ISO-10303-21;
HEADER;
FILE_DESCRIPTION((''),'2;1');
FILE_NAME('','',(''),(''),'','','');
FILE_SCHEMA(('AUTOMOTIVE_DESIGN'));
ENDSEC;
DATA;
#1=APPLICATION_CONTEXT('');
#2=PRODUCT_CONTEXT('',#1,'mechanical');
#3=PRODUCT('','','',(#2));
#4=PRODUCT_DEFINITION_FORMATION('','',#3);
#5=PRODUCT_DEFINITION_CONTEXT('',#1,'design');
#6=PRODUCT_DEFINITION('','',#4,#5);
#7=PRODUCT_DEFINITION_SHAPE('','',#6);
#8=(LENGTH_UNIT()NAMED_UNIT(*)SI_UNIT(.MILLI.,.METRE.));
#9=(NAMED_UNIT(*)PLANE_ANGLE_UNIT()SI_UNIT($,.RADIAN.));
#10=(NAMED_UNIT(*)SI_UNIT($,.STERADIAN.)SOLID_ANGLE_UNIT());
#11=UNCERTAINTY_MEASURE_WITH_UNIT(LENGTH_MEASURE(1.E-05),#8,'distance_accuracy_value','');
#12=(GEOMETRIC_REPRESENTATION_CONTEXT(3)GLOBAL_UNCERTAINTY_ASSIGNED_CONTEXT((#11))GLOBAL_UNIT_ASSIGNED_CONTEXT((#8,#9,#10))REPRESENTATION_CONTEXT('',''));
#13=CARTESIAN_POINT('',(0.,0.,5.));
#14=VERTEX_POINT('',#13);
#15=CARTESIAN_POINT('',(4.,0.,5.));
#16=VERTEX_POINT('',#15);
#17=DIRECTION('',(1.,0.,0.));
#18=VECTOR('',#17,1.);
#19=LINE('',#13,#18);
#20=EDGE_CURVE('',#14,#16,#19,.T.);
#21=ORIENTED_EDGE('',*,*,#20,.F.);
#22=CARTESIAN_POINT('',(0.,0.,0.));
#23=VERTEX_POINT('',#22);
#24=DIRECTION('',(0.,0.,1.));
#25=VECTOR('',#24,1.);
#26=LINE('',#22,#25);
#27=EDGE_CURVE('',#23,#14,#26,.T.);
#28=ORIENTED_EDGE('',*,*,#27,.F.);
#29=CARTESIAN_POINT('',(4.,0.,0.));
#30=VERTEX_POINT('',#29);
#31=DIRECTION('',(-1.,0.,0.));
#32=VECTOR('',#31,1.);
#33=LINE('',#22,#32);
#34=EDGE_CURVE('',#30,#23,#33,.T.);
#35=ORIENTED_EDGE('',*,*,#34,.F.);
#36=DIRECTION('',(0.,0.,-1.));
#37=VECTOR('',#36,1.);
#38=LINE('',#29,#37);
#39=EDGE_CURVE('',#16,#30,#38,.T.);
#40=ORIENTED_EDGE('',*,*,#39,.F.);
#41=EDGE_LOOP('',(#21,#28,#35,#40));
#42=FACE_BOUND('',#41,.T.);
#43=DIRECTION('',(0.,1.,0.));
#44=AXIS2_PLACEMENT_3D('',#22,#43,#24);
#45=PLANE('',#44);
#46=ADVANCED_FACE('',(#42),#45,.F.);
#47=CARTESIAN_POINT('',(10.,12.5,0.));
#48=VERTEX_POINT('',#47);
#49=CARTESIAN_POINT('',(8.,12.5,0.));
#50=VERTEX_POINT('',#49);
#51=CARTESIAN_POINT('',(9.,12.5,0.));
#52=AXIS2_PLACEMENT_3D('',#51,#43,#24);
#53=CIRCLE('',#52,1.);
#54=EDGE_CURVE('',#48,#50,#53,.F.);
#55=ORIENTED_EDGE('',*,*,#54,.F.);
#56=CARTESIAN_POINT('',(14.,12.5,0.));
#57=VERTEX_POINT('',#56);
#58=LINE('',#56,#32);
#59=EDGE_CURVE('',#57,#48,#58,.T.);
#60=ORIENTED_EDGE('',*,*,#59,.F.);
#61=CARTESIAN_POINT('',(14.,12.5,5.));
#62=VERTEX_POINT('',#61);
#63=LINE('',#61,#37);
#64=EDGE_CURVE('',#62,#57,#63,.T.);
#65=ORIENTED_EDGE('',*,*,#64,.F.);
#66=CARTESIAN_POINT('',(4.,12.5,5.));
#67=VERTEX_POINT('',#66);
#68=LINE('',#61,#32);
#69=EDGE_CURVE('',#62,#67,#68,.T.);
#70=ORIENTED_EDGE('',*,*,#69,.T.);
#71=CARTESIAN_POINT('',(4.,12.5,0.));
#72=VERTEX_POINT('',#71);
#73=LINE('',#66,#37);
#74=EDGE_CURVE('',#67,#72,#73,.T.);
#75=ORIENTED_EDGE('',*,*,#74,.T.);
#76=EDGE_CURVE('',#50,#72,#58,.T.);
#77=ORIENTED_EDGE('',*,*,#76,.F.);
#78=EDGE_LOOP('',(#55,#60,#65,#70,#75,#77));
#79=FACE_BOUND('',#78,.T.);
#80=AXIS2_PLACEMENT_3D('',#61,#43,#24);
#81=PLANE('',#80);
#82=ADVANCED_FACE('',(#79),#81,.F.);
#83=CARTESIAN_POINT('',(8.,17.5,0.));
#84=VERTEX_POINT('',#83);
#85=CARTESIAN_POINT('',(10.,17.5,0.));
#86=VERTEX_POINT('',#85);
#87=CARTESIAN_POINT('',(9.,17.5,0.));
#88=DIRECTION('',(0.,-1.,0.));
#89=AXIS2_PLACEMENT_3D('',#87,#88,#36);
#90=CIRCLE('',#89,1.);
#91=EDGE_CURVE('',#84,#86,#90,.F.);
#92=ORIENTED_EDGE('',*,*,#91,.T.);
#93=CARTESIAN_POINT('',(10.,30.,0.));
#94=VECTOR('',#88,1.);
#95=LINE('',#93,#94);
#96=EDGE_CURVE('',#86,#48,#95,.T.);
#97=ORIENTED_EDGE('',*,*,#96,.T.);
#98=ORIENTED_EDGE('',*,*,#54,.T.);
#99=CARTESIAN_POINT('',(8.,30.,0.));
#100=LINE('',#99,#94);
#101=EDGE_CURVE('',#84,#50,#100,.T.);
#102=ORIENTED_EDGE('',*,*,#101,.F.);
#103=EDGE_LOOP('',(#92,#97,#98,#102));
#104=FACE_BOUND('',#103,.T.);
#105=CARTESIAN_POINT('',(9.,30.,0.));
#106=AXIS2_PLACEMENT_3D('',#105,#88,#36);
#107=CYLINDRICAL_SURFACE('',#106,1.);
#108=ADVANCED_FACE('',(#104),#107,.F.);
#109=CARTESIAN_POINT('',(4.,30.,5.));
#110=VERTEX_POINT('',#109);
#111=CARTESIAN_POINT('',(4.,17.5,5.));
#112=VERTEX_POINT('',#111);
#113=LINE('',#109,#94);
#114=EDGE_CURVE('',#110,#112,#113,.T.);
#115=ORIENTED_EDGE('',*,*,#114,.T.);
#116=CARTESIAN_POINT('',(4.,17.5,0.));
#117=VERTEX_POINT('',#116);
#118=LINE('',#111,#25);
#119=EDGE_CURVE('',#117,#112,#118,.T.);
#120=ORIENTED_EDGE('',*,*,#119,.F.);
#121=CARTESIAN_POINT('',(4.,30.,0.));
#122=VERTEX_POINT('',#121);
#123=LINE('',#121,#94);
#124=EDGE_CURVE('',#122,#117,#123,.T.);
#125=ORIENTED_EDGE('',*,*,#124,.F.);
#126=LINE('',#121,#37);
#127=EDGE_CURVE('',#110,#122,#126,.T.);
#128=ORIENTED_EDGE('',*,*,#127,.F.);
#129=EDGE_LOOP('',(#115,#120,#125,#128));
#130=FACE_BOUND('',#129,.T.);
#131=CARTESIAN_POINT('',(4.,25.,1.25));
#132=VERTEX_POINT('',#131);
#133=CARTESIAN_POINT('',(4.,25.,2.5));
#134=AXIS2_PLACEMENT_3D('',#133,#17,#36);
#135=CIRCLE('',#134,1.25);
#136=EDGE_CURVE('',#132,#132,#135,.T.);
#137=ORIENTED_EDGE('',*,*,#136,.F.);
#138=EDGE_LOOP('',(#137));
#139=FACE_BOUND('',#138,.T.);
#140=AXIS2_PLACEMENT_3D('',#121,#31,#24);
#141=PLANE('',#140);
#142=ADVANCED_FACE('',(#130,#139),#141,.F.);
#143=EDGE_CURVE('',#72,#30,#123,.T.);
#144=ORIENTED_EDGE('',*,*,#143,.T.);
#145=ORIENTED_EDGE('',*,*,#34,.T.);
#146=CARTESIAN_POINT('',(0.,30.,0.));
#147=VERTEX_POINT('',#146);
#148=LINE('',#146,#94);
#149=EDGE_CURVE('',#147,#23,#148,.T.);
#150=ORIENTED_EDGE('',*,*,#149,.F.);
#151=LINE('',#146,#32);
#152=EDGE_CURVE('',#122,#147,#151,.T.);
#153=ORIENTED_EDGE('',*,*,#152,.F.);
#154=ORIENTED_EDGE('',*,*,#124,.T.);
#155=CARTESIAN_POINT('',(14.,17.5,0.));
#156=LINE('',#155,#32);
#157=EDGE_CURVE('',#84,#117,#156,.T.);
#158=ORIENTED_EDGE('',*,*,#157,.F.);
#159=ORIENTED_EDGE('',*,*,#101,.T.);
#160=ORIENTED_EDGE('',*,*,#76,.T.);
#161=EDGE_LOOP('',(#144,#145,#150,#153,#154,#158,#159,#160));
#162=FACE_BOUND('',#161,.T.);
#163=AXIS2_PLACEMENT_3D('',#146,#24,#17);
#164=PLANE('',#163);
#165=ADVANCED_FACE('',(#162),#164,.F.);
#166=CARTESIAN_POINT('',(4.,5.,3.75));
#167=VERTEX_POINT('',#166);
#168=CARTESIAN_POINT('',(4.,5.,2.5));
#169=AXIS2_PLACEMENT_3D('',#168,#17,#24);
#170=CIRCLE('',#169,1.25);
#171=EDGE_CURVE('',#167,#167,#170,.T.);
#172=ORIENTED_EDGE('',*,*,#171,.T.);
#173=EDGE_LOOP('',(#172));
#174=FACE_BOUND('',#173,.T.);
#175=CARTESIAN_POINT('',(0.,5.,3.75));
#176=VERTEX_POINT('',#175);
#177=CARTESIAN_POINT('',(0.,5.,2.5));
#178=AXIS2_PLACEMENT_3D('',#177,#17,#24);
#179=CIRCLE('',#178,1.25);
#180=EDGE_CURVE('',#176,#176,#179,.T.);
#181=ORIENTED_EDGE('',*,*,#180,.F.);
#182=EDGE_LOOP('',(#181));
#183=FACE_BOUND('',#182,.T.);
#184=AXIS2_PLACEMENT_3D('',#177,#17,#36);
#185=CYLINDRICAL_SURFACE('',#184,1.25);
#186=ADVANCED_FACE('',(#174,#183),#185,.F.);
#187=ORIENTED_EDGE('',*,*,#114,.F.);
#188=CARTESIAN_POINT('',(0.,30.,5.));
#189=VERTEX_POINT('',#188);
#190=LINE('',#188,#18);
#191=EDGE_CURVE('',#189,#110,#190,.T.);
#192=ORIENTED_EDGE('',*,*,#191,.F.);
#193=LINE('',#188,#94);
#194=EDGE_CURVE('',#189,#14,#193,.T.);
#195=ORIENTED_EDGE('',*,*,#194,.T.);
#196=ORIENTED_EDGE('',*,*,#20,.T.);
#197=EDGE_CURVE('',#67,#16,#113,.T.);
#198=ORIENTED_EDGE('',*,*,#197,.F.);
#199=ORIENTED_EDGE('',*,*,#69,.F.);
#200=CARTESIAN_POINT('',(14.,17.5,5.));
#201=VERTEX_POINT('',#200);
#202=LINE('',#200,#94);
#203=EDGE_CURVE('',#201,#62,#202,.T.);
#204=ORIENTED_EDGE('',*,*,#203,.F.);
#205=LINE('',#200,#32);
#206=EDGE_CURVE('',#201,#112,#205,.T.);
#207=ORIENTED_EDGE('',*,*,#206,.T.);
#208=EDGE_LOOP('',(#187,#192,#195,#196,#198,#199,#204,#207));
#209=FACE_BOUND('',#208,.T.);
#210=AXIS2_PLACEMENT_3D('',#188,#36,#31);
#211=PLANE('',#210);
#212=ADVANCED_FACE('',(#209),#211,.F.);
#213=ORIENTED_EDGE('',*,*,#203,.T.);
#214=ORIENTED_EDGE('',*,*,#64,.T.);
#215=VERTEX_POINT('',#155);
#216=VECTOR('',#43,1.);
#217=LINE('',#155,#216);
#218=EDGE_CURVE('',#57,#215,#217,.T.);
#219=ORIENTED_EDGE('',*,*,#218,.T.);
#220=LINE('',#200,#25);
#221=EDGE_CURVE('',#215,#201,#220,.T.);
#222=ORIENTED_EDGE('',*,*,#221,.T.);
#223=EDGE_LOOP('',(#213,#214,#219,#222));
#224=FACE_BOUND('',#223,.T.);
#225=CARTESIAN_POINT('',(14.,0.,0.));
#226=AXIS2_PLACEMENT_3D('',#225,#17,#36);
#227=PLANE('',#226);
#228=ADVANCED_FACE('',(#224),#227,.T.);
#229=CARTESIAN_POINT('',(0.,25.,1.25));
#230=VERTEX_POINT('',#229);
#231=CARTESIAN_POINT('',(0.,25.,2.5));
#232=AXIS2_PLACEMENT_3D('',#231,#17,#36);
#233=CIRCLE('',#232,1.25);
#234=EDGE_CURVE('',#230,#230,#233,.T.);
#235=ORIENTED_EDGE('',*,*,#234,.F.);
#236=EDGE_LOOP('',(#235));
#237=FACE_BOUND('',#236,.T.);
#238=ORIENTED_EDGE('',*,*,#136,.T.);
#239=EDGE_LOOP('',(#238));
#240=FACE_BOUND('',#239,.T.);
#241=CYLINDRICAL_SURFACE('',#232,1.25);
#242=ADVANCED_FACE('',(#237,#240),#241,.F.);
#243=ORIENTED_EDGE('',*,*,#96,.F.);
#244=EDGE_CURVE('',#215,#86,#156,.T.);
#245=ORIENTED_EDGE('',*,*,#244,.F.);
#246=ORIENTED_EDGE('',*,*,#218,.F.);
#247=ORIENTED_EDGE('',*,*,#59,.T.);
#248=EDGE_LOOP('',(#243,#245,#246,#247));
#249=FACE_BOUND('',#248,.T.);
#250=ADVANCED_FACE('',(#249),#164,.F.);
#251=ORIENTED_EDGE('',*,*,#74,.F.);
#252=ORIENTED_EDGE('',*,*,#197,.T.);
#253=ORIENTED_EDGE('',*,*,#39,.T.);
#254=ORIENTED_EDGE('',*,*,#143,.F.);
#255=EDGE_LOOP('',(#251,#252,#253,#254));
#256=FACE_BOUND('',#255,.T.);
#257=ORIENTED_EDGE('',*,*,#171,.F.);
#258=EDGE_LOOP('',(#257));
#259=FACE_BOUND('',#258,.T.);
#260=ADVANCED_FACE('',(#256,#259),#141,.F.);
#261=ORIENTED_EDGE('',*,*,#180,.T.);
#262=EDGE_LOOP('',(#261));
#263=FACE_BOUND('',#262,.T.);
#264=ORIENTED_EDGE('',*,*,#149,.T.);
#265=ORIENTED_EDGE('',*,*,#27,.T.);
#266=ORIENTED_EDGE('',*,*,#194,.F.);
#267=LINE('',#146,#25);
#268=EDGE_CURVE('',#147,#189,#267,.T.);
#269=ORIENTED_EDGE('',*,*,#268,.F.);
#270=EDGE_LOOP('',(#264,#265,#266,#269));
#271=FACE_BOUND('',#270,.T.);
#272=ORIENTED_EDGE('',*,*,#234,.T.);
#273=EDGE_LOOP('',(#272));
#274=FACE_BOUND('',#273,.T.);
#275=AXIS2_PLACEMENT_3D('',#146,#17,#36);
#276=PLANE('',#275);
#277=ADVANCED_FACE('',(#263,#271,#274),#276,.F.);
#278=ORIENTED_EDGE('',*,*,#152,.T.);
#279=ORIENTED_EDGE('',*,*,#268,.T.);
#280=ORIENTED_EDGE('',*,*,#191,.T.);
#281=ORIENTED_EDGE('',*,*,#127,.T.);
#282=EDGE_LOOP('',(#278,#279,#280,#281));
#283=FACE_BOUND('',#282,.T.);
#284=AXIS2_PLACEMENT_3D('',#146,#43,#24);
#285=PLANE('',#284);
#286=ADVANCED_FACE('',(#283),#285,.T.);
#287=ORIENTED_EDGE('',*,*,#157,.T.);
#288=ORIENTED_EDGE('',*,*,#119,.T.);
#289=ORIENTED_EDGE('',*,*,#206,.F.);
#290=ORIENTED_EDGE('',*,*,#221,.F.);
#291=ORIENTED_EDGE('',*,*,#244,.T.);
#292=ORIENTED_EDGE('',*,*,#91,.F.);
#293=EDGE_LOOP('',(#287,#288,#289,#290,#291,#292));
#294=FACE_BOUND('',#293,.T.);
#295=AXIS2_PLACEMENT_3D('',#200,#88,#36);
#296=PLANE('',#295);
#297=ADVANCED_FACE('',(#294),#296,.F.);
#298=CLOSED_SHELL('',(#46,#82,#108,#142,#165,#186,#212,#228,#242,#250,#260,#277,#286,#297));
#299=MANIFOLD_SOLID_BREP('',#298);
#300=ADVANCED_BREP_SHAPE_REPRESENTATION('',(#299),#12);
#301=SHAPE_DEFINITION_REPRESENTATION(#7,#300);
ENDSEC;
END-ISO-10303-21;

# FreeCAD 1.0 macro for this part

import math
import FreeCAD as App
import Part
import Sketcher
Q = App.Units.Quantity


def add_polygon(sketch, points):
    """Adds a closed chain of lines whose ends are joined by coincident constraints."""
    first, n = sketch.GeometryCount, len(points)
    for a, b in zip(points, points[1:] + points[:1]):
        sketch.addGeometry(Part.LineSegment(App.Vector(*a, 0), App.Vector(*b, 0)), False)
    for i in range(n):
        sketch.addConstraint(Sketcher.Constraint("Coincident", first + i, 2, first + (i + 1) % n, 1))

doc = App.newDocument("Part")
body = doc.addObject("PartDesign::Body", "Body")

# Sketch on XZ plane
sketch1 = doc.addObject("Sketcher::SketchObject", "Sketch")
body.addObject(sketch1)
sketch1.AttachmentSupport = (doc.XZ_Plane, [""])
sketch1.MapMode = "FlatFace"
add_polygon(sketch1, [(0, 0), (0, 5), (4, 5), (4, 0)])  # lines 0-3
sketch1.addConstraint(Sketcher.Constraint("Vertical", 0))
sketch1.addConstraint(Sketcher.Constraint("Horizontal", 1))
sketch1.addConstraint(Sketcher.Constraint("Vertical", 2))
sketch1.addConstraint(Sketcher.Constraint("Horizontal", 3))
sketch1.addConstraint(Sketcher.Constraint("Coincident", 3, 2, -1, 1))
sketch1.addConstraint(Sketcher.Constraint("DistanceX", 1, 1, 1, 2, Q("4 mm")))
sketch1.addConstraint(Sketcher.Constraint("DistanceY", 0, 1, 0, 2, Q("5 mm")))
pad1 = doc.addObject("PartDesign::Pad", "Pad")
body.addObject(pad1)
pad1.Profile = sketch1
pad1.Length = 30
pad1.Reversed = True

# Sketch on YZ plane
sketch2 = doc.addObject("Sketcher::SketchObject", "Sketch001")
body.addObject(sketch2)
sketch2.AttachmentSupport = (doc.YZ_Plane, [""])
sketch2.MapMode = "FlatFace"
sketch2.AttachmentOffset = App.Placement(App.Vector(0, 0, 4), App.Rotation())
add_polygon(sketch2, [(18, 5), (12, 5), (12, 0), (18, 0)])  # lines 0-3
sketch2.addConstraint(Sketcher.Constraint("Horizontal", 0))
sketch2.addConstraint(Sketcher.Constraint("Vertical", 1))
sketch2.addConstraint(Sketcher.Constraint("Horizontal", 2))
sketch2.addConstraint(Sketcher.Constraint("Vertical", 3))
sketch2.addConstraint(Sketcher.Constraint("PointOnObject", 1, 2, -1))
sketch2.addConstraint(Sketcher.Constraint("Equal", 2, 1))
sketch2.addConstraint(Sketcher.Constraint("DistanceX", 0, 2, 0, 1, Q("5 mm")))
sketch2.addConstraint(Sketcher.Constraint("DistanceX", -1, 1, 0, 2, Q("12.5 mm")))
pad2 = doc.addObject("PartDesign::Pad", "Pad001")
body.addObject(pad2)
pad2.Profile = sketch2
pad2.Length = 10

# Sketch on YZ plane
sketch3 = doc.addObject("Sketcher::SketchObject", "Sketch002")
body.addObject(sketch3)
sketch3.AttachmentSupport = (doc.YZ_Plane, [""])
sketch3.MapMode = "FlatFace"
sketch3.AttachmentOffset = App.Placement(App.Vector(0, 0, 4), App.Rotation())
sketch3.addGeometry(Part.Circle(App.Vector(25, 2.5, 0), App.Vector(0, 0, 1), 1.2), False)
sketch3.addGeometry(Part.Circle(App.Vector(5, 2.5, 0), App.Vector(0, 0, 1), 1.2), False)
sketch3.addConstraint(Sketcher.Constraint("Equal", 0, 1))
sketch3.addConstraint(Sketcher.Constraint("Horizontal", 0, 3, 1, 3))
sketch3.addConstraint(Sketcher.Constraint("Diameter", 0, Q("2.5 mm")))
sketch3.addConstraint(Sketcher.Constraint("DistanceX", -1, 1, 0, 3, Q("25 mm")))
sketch3.addConstraint(Sketcher.Constraint("DistanceX", -1, 1, 1, 3, Q("5 mm")))
sketch3.addConstraint(Sketcher.Constraint("DistanceY", -1, 1, 0, 3, Q("2.5 mm")))
pocket1 = doc.addObject("PartDesign::Pocket", "Pocket")
body.addObject(pocket1)
pocket1.Profile = sketch3
pocket1.Type = "ThroughAll"

# Sketch on XZ plane
sketch4 = doc.addObject("Sketcher::SketchObject", "Sketch003")
body.addObject(sketch4)
sketch4.AttachmentSupport = (doc.XZ_Plane, [""])
sketch4.MapMode = "FlatFace"
sketch4.addGeometry(Part.LineSegment(App.Vector(10, 0, 0), App.Vector(8, 0, 0)), False)
sketch4.addGeometry(Part.ArcOfCircle(Part.Circle(App.Vector(9, 0, 0), App.Vector(0, 0, 1), 1), math.radians(0), math.radians(180)), False)
sketch4.addConstraint(Sketcher.Constraint("Coincident", 0, 1, 1, 1))
sketch4.addConstraint(Sketcher.Constraint("Coincident", 1, 2, 0, 2))
sketch4.addConstraint(Sketcher.Constraint("Horizontal", 0))
sketch4.addConstraint(Sketcher.Constraint("PointOnObject", 1, 3, -1))
sketch4.addConstraint(Sketcher.Constraint("PointOnObject", 0, 1, -1))
sketch4.addConstraint(Sketcher.Constraint("Radius", 1, Q("1 mm")))
sketch4.addConstraint(Sketcher.Constraint("DistanceX", -1, 1, 1, 3, Q("9 mm")))
pocket2 = doc.addObject("PartDesign::Pocket", "Pocket001")
body.addObject(pocket2)
pocket2.Profile = sketch4
pocket2.Type = "ThroughAll"

doc.recompute()
